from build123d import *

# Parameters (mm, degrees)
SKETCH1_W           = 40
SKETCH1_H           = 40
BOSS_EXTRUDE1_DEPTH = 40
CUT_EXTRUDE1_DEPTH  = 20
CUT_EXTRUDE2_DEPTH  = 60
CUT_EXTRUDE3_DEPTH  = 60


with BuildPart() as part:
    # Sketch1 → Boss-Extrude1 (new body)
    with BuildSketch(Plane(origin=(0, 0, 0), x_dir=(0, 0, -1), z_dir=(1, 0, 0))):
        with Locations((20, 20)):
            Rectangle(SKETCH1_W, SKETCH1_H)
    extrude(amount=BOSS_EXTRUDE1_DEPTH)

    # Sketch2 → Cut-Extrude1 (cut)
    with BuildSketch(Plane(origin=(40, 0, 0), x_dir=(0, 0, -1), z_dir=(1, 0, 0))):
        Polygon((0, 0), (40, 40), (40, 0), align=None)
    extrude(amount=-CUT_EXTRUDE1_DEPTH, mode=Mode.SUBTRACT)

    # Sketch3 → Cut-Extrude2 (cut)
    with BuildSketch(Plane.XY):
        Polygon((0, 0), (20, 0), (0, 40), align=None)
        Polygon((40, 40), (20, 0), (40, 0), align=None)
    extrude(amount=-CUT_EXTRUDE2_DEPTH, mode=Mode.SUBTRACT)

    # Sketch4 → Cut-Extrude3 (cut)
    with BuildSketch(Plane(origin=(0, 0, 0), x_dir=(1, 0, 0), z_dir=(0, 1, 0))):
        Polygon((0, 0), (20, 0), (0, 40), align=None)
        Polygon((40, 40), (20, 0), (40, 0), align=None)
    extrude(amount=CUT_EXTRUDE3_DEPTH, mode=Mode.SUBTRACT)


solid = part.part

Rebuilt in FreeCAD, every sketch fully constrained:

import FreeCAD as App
import Part
import Sketcher


def add_polygon(sketch, points):
    """Adds a closed chain of lines whose ends are joined by coincident constraints."""
    first, n = sketch.GeometryCount, len(points)
    for a, b in zip(points, points[1:] + points[:1]):
        sketch.addGeometry(Part.LineSegment(App.Vector(*a, 0), App.Vector(*b, 0)), False)
    for i in range(n):
        sketch.addConstraint(Sketcher.Constraint("Coincident", first + i, 2, first + (i + 1) % n, 1))

doc = App.newDocument("Part")
body = doc.addObject("PartDesign::Body", "Body")

# Sketch on YZ plane
sketch1 = body.newObject("Sketcher::SketchObject", "Sketch")
sketch1.AttachmentSupport = (doc.getObject("YZ_Plane"), [""])
sketch1.MapMode = "FlatFace"
add_polygon(sketch1, [(40, 0), (0, 0), (0, -40), (40, -40)])  # lines 0-3
sketch1.addConstraint(Sketcher.Constraint("Horizontal", 0))
sketch1.addConstraint(Sketcher.Constraint("Vertical", 1))
sketch1.addConstraint(Sketcher.Constraint("Horizontal", 2))
sketch1.addConstraint(Sketcher.Constraint("Vertical", 3))
sketch1.addConstraint(Sketcher.Constraint("Coincident", 0, 2, -1, 1))
sketch1.addConstraint(Sketcher.Constraint("Equal", 2, 1))
sketch1.addConstraint(Sketcher.Constraint("DistanceX", 0, 2, 0, 1, 40.0))
pad1 = body.newObject("PartDesign::Pad", "Pad")
pad1.Profile = sketch1
pad1.Length = 40

# Sketch on YZ plane
sketch2 = body.newObject("Sketcher::SketchObject", "Sketch001")
sketch2.AttachmentSupport = (doc.getObject("YZ_Plane"), [""])
sketch2.MapMode = "FlatFace"
sketch2.AttachmentOffset = App.Placement(App.Vector(0, 0, 40), App.Rotation())
add_polygon(sketch2, [(40, -40), (0, 0), (0, -40)])  # lines 0-2
sketch2.addConstraint(Sketcher.Constraint("Vertical", 1))
sketch2.addConstraint(Sketcher.Constraint("Horizontal", 2))
sketch2.addConstraint(Sketcher.Constraint("Coincident", 0, 2, -1, 1))
sketch2.addConstraint(Sketcher.Constraint("Equal", 2, 1))
sketch2.addConstraint(Sketcher.Constraint("DistanceX", 2, 1, 2, 2, 40.0))
pocket1 = body.newObject("PartDesign::Pocket", "Pocket")
pocket1.Profile = sketch2
pocket1.Length = 20

# Sketch on XY plane
sketch3 = body.newObject("Sketcher::SketchObject", "Sketch002")
sketch3.AttachmentSupport = (doc.getObject("XY_Plane"), [""])
sketch3.MapMode = "FlatFace"
add_polygon(sketch3, [(0, 0), (20, 0), (0, 40)])  # lines 0-2
add_polygon(sketch3, [(40, 40), (20, 0), (40, 0)])  # lines 3-5
sketch3.addConstraint(Sketcher.Constraint("Horizontal", 0))
sketch3.addConstraint(Sketcher.Constraint("Vertical", 2))
sketch3.addConstraint(Sketcher.Constraint("Horizontal", 4))
sketch3.addConstraint(Sketcher.Constraint("Vertical", 5))
sketch3.addConstraint(Sketcher.Constraint("Coincident", 2, 2, -1, 1))
sketch3.addConstraint(Sketcher.Constraint("Coincident", 3, 2, 0, 2))
sketch3.addConstraint(Sketcher.Constraint("Horizontal", 1, 2, 5, 2))
sketch3.addConstraint(Sketcher.Constraint("Equal", 0, 4))
sketch3.addConstraint(Sketcher.Constraint("DistanceX", 0, 1, 0, 2, 20.0))
sketch3.addConstraint(Sketcher.Constraint("DistanceY", 2, 2, 2, 1, 40.0))
pocket2 = body.newObject("PartDesign::Pocket", "Pocket001")
pocket2.Profile = sketch3
pocket2.Length = 60

# Sketch on XZ plane
sketch4 = body.newObject("Sketcher::SketchObject", "Sketch003")
sketch4.AttachmentSupport = (doc.getObject("XZ_Plane"), [""])
sketch4.MapMode = "FlatFace"
add_polygon(sketch4, [(0, 0), (20, 0), (0, -40)])  # lines 0-2
add_polygon(sketch4, [(40, -40), (20, 0), (40, 0)])  # lines 3-5
sketch4.addConstraint(Sketcher.Constraint("Horizontal", 0))
sketch4.addConstraint(Sketcher.Constraint("Vertical", 2))
sketch4.addConstraint(Sketcher.Constraint("Horizontal", 4))
sketch4.addConstraint(Sketcher.Constraint("Vertical", 5))
sketch4.addConstraint(Sketcher.Constraint("Coincident", 2, 2, -1, 1))
sketch4.addConstraint(Sketcher.Constraint("Coincident", 3, 2, 0, 2))
sketch4.addConstraint(Sketcher.Constraint("Horizontal", 1, 2, 5, 2))
sketch4.addConstraint(Sketcher.Constraint("Equal", 0, 4))
sketch4.addConstraint(Sketcher.Constraint("DistanceX", 0, 1, 0, 2, 20.0))
sketch4.addConstraint(Sketcher.Constraint("DistanceY", 2, 1, 2, 2, 40.0))
pocket3 = body.newObject("PartDesign::Pocket", "Pocket002")
pocket3.Profile = sketch4
pocket3.Length = 60

doc.recompute()
